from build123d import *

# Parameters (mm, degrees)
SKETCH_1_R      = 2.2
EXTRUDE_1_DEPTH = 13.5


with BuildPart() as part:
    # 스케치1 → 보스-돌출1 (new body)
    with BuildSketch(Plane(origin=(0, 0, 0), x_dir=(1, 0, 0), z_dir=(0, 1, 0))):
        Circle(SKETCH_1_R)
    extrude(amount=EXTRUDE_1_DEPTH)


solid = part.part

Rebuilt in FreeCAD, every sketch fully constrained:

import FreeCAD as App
import Part
import Sketcher

V = App.Vector
Q = App.Units.Quantity

doc = App.newDocument("Part")
body = doc.addObject("PartDesign::Body", "Body")

# Sketch on XZ plane
sketch1 = doc.addObject("Sketcher::SketchObject", "Sketch")
body.addObject(sketch1)
sketch1.AttachmentSupport = (doc.XZ_Plane, [""])
sketch1.MapMode = "FlatFace"
sketch1.addGeometry(Part.Circle(V(0, 0, 0), V(0, 0, 1), 2.2), False)
sketch1.addConstraint(Sketcher.Constraint("Coincident", 0, 3, -1, 1))
sketch1.addConstraint(Sketcher.Constraint("Diameter", 0, Q("4.4 mm")))
pad1 = doc.addObject("PartDesign::Pad", "Pad")
body.addObject(pad1)
pad1.Profile = sketch1
pad1.Length = 13.5
pad1.Reversed = True

doc.recompute()
